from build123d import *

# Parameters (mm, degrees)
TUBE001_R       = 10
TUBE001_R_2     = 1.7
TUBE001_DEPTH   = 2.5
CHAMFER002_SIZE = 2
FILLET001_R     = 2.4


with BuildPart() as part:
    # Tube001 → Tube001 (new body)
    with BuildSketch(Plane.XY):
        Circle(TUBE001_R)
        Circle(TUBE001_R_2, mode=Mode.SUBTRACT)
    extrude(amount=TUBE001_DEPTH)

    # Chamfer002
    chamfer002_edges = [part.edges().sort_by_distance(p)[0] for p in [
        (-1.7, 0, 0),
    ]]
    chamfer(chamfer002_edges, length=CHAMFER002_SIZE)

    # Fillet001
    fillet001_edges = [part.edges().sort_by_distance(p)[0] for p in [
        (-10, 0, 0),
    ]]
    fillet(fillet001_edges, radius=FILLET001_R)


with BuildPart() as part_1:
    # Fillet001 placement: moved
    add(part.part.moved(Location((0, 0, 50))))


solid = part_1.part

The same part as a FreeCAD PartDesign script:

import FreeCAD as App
import Part
import Sketcher


def edges_at(feature, points):
    """Names of the edges that pass closest to the given points."""
    edges = feature.Shape.Edges
    near = lambda p: min(range(len(edges)), key=lambda i: edges[i].distToShape(Part.Vertex(*p))[0])
    return sorted({f"Edge{near(p) + 1}" for p in points})

doc = App.newDocument("Part")
body = doc.addObject("PartDesign::Body", "Body")

# Sketch on XY plane
sketch1 = body.newObject("Sketcher::SketchObject", "Sketch")
sketch1.AttachmentSupport = (doc.getObject("XY_Plane"), [""])
sketch1.MapMode = "FlatFace"
sketch1.addGeometry([
    Part.Circle(App.Vector(0, 0, 0), App.Vector(0, 0, 1), 10),
    Part.Circle(App.Vector(0, 0, 0), App.Vector(0, 0, 1), 1.7),
], False)
sketch1.addConstraint([
    Sketcher.Constraint("Coincident", 0, 3, -1, 1),
    Sketcher.Constraint("Coincident", 1, 3, -1, 1),
    Sketcher.Constraint("Diameter", 0, 20.0),
    Sketcher.Constraint("Diameter", 1, 3.4),
])
pad1 = body.newObject("PartDesign::Pad", "Pad")
pad1.Profile = sketch1
pad1.Length = 2.5
doc.recompute()

chamfer = body.newObject("PartDesign::Chamfer", "Chamfer")
chamfer.Base = (pad1, edges_at(pad1, [(-1.7, 0, 0)]))
chamfer.Size = 2
doc.recompute()

fillet = body.newObject("PartDesign::Fillet", "Fillet")
fillet.Base = (chamfer, edges_at(chamfer, [(-10, 0, 0)]))
fillet.Radius = 2.4
body2 = doc.addObject("PartDesign::Body", "Body001")
doc.recompute()

body.Placement = App.Placement(App.Vector(0, 0, 50), App.Rotation(App.Vector(0, 0, 1), 0))
boolean = body2.newObject("PartDesign::Boolean", "Boolean")
boolean.Type = "Fuse"
boolean.addObjects([body])

doc.recompute()
